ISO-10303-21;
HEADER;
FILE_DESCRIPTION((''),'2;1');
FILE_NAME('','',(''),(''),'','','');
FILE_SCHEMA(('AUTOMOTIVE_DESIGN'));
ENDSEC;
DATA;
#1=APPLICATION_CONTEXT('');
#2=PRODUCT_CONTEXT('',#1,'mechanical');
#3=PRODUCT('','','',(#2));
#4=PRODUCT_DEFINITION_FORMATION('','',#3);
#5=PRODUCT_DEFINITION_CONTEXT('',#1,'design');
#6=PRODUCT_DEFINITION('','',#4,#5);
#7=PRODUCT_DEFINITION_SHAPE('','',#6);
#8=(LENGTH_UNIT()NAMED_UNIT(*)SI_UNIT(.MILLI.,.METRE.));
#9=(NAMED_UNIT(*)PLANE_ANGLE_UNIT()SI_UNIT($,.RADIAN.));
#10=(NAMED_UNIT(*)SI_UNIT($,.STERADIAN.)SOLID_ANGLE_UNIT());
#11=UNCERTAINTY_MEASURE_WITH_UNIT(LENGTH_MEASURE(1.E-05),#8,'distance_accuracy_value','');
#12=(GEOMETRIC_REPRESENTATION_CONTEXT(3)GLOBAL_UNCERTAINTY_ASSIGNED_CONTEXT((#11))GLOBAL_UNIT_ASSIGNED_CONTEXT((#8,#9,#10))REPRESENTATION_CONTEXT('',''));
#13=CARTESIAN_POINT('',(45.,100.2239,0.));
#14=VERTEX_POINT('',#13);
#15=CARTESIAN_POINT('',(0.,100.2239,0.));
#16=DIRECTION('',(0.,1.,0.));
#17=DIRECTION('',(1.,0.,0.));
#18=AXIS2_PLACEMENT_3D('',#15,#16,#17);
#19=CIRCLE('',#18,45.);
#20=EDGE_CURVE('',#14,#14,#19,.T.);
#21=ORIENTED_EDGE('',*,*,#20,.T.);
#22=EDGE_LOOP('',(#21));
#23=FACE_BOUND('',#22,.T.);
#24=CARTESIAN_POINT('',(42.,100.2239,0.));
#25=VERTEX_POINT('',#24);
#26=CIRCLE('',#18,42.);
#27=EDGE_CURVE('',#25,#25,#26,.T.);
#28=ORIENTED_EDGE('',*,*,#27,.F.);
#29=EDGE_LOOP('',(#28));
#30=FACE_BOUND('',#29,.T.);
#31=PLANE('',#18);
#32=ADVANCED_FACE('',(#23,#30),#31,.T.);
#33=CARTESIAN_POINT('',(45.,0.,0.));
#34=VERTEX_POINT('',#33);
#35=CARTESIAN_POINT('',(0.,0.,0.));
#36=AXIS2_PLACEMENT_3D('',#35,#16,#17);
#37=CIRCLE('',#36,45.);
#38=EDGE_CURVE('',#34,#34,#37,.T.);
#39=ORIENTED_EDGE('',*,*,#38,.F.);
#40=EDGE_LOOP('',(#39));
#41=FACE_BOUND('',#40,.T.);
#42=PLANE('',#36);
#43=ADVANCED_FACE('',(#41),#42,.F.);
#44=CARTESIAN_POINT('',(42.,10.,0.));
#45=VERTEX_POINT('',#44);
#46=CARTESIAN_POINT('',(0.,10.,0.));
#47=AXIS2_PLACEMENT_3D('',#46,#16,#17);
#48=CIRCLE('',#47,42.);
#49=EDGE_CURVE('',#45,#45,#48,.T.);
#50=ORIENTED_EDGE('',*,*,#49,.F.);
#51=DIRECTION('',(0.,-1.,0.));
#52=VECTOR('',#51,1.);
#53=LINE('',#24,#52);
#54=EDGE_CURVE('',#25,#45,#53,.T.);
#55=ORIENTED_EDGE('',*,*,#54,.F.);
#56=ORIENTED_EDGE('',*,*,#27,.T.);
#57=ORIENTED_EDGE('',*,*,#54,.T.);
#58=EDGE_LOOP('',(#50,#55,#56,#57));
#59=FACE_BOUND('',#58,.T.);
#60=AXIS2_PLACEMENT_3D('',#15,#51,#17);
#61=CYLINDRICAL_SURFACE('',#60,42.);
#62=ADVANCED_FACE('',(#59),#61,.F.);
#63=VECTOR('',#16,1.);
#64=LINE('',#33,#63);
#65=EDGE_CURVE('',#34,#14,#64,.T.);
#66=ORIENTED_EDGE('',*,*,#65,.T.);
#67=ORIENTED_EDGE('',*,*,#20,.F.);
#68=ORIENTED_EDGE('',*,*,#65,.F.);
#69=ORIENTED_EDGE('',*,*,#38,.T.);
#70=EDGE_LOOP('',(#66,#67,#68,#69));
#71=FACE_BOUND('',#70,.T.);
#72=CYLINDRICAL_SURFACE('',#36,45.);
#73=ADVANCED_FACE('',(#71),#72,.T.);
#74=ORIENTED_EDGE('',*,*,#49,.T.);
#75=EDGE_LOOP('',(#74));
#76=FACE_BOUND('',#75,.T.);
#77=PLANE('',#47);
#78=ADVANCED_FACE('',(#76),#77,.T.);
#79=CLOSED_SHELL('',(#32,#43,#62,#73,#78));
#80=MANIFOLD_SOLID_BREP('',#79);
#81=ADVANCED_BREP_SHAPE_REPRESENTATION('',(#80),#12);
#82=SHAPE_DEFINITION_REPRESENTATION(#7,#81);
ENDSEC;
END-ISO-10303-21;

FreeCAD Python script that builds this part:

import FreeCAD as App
import Part
import Sketcher

doc = App.newDocument("Part")
params = doc.addObject("Spreadsheet::Sheet", "Params")
for row, (alias, value) in enumerate([
    ("sketch1_width", "3 mm"),
    ("sketch1_width2", "42 mm"),
    ("sketch1_height", "10 mm"),
    ("revolution_angle", "360 deg"),
], start=1):
    params.set(f"A{row}", alias)
    params.set(f"B{row}", "=" + value)
    params.setAlias(f"B{row}", alias)

body = doc.addObject("PartDesign::Body", "Body")

# Sketch on XY plane
sketch1 = doc.addObject("Sketcher::SketchObject", "Sketch")
body.addObject(sketch1)
sketch1.AttachmentSupport = (doc.XY_Plane, [""])
sketch1.MapMode = "FlatFace"
sketch1.addGeometry([
    Part.LineSegment(App.Vector(0, 0, 0), App.Vector(45, 0, 0)),  # 0
    Part.LineSegment(App.Vector(45, 0, 0), App.Vector(45, 100.2, 0)),  # 1
    Part.LineSegment(App.Vector(45, 100.2, 0), App.Vector(42, 100.2, 0)),  # 2
    Part.LineSegment(App.Vector(42, 100.2, 0), App.Vector(42, 10, 0)),  # 3
    Part.LineSegment(App.Vector(42, 10, 0), App.Vector(0, 10, 0)),  # 4
    Part.LineSegment(App.Vector(0, 10, 0), App.Vector(0, 0, 0)),  # 5
], False)
sketch1.addConstraint([
    Sketcher.Constraint("Coincident", 0, 2, 1, 1),
    Sketcher.Constraint("Coincident", 1, 2, 2, 1),
    Sketcher.Constraint("Coincident", 2, 2, 3, 1),
    Sketcher.Constraint("Coincident", 3, 2, 4, 1),
    Sketcher.Constraint("Coincident", 4, 2, 5, 1),
    Sketcher.Constraint("Coincident", 5, 2, 0, 1),
    Sketcher.Constraint("Horizontal", 0),
    Sketcher.Constraint("Vertical", 1),
    Sketcher.Constraint("Horizontal", 2),
    Sketcher.Constraint("Vertical", 3),
    Sketcher.Constraint("Horizontal", 4),
    Sketcher.Constraint("Vertical", 5),
    Sketcher.Constraint("Coincident", 5, 2, -1, 1),
    Sketcher.Constraint("DistanceX", 2, 2, 2, 1, 3.0),
    Sketcher.Constraint("DistanceX", 4, 2, 4, 1, 42.0),
    Sketcher.Constraint("DistanceY", 5, 2, 5, 1, 10.0),
    Sketcher.Constraint("DistanceY", 3, 2, 3, 1, 90.224),
])
sketch1.setExpression("Constraints[13]", "Params.sketch1_width")
sketch1.setExpression("Constraints[14]", "Params.sketch1_width2")
sketch1.setExpression("Constraints[15]", "Params.sketch1_height")
revolution = doc.addObject("PartDesign::Revolution", "Revolution")
body.addObject(revolution)
revolution.Profile = sketch1
revolution.ReferenceAxis = (sketch1, ["V_Axis"])
revolution.setExpression("Angle", "Params.revolution_angle")

doc.recompute()
